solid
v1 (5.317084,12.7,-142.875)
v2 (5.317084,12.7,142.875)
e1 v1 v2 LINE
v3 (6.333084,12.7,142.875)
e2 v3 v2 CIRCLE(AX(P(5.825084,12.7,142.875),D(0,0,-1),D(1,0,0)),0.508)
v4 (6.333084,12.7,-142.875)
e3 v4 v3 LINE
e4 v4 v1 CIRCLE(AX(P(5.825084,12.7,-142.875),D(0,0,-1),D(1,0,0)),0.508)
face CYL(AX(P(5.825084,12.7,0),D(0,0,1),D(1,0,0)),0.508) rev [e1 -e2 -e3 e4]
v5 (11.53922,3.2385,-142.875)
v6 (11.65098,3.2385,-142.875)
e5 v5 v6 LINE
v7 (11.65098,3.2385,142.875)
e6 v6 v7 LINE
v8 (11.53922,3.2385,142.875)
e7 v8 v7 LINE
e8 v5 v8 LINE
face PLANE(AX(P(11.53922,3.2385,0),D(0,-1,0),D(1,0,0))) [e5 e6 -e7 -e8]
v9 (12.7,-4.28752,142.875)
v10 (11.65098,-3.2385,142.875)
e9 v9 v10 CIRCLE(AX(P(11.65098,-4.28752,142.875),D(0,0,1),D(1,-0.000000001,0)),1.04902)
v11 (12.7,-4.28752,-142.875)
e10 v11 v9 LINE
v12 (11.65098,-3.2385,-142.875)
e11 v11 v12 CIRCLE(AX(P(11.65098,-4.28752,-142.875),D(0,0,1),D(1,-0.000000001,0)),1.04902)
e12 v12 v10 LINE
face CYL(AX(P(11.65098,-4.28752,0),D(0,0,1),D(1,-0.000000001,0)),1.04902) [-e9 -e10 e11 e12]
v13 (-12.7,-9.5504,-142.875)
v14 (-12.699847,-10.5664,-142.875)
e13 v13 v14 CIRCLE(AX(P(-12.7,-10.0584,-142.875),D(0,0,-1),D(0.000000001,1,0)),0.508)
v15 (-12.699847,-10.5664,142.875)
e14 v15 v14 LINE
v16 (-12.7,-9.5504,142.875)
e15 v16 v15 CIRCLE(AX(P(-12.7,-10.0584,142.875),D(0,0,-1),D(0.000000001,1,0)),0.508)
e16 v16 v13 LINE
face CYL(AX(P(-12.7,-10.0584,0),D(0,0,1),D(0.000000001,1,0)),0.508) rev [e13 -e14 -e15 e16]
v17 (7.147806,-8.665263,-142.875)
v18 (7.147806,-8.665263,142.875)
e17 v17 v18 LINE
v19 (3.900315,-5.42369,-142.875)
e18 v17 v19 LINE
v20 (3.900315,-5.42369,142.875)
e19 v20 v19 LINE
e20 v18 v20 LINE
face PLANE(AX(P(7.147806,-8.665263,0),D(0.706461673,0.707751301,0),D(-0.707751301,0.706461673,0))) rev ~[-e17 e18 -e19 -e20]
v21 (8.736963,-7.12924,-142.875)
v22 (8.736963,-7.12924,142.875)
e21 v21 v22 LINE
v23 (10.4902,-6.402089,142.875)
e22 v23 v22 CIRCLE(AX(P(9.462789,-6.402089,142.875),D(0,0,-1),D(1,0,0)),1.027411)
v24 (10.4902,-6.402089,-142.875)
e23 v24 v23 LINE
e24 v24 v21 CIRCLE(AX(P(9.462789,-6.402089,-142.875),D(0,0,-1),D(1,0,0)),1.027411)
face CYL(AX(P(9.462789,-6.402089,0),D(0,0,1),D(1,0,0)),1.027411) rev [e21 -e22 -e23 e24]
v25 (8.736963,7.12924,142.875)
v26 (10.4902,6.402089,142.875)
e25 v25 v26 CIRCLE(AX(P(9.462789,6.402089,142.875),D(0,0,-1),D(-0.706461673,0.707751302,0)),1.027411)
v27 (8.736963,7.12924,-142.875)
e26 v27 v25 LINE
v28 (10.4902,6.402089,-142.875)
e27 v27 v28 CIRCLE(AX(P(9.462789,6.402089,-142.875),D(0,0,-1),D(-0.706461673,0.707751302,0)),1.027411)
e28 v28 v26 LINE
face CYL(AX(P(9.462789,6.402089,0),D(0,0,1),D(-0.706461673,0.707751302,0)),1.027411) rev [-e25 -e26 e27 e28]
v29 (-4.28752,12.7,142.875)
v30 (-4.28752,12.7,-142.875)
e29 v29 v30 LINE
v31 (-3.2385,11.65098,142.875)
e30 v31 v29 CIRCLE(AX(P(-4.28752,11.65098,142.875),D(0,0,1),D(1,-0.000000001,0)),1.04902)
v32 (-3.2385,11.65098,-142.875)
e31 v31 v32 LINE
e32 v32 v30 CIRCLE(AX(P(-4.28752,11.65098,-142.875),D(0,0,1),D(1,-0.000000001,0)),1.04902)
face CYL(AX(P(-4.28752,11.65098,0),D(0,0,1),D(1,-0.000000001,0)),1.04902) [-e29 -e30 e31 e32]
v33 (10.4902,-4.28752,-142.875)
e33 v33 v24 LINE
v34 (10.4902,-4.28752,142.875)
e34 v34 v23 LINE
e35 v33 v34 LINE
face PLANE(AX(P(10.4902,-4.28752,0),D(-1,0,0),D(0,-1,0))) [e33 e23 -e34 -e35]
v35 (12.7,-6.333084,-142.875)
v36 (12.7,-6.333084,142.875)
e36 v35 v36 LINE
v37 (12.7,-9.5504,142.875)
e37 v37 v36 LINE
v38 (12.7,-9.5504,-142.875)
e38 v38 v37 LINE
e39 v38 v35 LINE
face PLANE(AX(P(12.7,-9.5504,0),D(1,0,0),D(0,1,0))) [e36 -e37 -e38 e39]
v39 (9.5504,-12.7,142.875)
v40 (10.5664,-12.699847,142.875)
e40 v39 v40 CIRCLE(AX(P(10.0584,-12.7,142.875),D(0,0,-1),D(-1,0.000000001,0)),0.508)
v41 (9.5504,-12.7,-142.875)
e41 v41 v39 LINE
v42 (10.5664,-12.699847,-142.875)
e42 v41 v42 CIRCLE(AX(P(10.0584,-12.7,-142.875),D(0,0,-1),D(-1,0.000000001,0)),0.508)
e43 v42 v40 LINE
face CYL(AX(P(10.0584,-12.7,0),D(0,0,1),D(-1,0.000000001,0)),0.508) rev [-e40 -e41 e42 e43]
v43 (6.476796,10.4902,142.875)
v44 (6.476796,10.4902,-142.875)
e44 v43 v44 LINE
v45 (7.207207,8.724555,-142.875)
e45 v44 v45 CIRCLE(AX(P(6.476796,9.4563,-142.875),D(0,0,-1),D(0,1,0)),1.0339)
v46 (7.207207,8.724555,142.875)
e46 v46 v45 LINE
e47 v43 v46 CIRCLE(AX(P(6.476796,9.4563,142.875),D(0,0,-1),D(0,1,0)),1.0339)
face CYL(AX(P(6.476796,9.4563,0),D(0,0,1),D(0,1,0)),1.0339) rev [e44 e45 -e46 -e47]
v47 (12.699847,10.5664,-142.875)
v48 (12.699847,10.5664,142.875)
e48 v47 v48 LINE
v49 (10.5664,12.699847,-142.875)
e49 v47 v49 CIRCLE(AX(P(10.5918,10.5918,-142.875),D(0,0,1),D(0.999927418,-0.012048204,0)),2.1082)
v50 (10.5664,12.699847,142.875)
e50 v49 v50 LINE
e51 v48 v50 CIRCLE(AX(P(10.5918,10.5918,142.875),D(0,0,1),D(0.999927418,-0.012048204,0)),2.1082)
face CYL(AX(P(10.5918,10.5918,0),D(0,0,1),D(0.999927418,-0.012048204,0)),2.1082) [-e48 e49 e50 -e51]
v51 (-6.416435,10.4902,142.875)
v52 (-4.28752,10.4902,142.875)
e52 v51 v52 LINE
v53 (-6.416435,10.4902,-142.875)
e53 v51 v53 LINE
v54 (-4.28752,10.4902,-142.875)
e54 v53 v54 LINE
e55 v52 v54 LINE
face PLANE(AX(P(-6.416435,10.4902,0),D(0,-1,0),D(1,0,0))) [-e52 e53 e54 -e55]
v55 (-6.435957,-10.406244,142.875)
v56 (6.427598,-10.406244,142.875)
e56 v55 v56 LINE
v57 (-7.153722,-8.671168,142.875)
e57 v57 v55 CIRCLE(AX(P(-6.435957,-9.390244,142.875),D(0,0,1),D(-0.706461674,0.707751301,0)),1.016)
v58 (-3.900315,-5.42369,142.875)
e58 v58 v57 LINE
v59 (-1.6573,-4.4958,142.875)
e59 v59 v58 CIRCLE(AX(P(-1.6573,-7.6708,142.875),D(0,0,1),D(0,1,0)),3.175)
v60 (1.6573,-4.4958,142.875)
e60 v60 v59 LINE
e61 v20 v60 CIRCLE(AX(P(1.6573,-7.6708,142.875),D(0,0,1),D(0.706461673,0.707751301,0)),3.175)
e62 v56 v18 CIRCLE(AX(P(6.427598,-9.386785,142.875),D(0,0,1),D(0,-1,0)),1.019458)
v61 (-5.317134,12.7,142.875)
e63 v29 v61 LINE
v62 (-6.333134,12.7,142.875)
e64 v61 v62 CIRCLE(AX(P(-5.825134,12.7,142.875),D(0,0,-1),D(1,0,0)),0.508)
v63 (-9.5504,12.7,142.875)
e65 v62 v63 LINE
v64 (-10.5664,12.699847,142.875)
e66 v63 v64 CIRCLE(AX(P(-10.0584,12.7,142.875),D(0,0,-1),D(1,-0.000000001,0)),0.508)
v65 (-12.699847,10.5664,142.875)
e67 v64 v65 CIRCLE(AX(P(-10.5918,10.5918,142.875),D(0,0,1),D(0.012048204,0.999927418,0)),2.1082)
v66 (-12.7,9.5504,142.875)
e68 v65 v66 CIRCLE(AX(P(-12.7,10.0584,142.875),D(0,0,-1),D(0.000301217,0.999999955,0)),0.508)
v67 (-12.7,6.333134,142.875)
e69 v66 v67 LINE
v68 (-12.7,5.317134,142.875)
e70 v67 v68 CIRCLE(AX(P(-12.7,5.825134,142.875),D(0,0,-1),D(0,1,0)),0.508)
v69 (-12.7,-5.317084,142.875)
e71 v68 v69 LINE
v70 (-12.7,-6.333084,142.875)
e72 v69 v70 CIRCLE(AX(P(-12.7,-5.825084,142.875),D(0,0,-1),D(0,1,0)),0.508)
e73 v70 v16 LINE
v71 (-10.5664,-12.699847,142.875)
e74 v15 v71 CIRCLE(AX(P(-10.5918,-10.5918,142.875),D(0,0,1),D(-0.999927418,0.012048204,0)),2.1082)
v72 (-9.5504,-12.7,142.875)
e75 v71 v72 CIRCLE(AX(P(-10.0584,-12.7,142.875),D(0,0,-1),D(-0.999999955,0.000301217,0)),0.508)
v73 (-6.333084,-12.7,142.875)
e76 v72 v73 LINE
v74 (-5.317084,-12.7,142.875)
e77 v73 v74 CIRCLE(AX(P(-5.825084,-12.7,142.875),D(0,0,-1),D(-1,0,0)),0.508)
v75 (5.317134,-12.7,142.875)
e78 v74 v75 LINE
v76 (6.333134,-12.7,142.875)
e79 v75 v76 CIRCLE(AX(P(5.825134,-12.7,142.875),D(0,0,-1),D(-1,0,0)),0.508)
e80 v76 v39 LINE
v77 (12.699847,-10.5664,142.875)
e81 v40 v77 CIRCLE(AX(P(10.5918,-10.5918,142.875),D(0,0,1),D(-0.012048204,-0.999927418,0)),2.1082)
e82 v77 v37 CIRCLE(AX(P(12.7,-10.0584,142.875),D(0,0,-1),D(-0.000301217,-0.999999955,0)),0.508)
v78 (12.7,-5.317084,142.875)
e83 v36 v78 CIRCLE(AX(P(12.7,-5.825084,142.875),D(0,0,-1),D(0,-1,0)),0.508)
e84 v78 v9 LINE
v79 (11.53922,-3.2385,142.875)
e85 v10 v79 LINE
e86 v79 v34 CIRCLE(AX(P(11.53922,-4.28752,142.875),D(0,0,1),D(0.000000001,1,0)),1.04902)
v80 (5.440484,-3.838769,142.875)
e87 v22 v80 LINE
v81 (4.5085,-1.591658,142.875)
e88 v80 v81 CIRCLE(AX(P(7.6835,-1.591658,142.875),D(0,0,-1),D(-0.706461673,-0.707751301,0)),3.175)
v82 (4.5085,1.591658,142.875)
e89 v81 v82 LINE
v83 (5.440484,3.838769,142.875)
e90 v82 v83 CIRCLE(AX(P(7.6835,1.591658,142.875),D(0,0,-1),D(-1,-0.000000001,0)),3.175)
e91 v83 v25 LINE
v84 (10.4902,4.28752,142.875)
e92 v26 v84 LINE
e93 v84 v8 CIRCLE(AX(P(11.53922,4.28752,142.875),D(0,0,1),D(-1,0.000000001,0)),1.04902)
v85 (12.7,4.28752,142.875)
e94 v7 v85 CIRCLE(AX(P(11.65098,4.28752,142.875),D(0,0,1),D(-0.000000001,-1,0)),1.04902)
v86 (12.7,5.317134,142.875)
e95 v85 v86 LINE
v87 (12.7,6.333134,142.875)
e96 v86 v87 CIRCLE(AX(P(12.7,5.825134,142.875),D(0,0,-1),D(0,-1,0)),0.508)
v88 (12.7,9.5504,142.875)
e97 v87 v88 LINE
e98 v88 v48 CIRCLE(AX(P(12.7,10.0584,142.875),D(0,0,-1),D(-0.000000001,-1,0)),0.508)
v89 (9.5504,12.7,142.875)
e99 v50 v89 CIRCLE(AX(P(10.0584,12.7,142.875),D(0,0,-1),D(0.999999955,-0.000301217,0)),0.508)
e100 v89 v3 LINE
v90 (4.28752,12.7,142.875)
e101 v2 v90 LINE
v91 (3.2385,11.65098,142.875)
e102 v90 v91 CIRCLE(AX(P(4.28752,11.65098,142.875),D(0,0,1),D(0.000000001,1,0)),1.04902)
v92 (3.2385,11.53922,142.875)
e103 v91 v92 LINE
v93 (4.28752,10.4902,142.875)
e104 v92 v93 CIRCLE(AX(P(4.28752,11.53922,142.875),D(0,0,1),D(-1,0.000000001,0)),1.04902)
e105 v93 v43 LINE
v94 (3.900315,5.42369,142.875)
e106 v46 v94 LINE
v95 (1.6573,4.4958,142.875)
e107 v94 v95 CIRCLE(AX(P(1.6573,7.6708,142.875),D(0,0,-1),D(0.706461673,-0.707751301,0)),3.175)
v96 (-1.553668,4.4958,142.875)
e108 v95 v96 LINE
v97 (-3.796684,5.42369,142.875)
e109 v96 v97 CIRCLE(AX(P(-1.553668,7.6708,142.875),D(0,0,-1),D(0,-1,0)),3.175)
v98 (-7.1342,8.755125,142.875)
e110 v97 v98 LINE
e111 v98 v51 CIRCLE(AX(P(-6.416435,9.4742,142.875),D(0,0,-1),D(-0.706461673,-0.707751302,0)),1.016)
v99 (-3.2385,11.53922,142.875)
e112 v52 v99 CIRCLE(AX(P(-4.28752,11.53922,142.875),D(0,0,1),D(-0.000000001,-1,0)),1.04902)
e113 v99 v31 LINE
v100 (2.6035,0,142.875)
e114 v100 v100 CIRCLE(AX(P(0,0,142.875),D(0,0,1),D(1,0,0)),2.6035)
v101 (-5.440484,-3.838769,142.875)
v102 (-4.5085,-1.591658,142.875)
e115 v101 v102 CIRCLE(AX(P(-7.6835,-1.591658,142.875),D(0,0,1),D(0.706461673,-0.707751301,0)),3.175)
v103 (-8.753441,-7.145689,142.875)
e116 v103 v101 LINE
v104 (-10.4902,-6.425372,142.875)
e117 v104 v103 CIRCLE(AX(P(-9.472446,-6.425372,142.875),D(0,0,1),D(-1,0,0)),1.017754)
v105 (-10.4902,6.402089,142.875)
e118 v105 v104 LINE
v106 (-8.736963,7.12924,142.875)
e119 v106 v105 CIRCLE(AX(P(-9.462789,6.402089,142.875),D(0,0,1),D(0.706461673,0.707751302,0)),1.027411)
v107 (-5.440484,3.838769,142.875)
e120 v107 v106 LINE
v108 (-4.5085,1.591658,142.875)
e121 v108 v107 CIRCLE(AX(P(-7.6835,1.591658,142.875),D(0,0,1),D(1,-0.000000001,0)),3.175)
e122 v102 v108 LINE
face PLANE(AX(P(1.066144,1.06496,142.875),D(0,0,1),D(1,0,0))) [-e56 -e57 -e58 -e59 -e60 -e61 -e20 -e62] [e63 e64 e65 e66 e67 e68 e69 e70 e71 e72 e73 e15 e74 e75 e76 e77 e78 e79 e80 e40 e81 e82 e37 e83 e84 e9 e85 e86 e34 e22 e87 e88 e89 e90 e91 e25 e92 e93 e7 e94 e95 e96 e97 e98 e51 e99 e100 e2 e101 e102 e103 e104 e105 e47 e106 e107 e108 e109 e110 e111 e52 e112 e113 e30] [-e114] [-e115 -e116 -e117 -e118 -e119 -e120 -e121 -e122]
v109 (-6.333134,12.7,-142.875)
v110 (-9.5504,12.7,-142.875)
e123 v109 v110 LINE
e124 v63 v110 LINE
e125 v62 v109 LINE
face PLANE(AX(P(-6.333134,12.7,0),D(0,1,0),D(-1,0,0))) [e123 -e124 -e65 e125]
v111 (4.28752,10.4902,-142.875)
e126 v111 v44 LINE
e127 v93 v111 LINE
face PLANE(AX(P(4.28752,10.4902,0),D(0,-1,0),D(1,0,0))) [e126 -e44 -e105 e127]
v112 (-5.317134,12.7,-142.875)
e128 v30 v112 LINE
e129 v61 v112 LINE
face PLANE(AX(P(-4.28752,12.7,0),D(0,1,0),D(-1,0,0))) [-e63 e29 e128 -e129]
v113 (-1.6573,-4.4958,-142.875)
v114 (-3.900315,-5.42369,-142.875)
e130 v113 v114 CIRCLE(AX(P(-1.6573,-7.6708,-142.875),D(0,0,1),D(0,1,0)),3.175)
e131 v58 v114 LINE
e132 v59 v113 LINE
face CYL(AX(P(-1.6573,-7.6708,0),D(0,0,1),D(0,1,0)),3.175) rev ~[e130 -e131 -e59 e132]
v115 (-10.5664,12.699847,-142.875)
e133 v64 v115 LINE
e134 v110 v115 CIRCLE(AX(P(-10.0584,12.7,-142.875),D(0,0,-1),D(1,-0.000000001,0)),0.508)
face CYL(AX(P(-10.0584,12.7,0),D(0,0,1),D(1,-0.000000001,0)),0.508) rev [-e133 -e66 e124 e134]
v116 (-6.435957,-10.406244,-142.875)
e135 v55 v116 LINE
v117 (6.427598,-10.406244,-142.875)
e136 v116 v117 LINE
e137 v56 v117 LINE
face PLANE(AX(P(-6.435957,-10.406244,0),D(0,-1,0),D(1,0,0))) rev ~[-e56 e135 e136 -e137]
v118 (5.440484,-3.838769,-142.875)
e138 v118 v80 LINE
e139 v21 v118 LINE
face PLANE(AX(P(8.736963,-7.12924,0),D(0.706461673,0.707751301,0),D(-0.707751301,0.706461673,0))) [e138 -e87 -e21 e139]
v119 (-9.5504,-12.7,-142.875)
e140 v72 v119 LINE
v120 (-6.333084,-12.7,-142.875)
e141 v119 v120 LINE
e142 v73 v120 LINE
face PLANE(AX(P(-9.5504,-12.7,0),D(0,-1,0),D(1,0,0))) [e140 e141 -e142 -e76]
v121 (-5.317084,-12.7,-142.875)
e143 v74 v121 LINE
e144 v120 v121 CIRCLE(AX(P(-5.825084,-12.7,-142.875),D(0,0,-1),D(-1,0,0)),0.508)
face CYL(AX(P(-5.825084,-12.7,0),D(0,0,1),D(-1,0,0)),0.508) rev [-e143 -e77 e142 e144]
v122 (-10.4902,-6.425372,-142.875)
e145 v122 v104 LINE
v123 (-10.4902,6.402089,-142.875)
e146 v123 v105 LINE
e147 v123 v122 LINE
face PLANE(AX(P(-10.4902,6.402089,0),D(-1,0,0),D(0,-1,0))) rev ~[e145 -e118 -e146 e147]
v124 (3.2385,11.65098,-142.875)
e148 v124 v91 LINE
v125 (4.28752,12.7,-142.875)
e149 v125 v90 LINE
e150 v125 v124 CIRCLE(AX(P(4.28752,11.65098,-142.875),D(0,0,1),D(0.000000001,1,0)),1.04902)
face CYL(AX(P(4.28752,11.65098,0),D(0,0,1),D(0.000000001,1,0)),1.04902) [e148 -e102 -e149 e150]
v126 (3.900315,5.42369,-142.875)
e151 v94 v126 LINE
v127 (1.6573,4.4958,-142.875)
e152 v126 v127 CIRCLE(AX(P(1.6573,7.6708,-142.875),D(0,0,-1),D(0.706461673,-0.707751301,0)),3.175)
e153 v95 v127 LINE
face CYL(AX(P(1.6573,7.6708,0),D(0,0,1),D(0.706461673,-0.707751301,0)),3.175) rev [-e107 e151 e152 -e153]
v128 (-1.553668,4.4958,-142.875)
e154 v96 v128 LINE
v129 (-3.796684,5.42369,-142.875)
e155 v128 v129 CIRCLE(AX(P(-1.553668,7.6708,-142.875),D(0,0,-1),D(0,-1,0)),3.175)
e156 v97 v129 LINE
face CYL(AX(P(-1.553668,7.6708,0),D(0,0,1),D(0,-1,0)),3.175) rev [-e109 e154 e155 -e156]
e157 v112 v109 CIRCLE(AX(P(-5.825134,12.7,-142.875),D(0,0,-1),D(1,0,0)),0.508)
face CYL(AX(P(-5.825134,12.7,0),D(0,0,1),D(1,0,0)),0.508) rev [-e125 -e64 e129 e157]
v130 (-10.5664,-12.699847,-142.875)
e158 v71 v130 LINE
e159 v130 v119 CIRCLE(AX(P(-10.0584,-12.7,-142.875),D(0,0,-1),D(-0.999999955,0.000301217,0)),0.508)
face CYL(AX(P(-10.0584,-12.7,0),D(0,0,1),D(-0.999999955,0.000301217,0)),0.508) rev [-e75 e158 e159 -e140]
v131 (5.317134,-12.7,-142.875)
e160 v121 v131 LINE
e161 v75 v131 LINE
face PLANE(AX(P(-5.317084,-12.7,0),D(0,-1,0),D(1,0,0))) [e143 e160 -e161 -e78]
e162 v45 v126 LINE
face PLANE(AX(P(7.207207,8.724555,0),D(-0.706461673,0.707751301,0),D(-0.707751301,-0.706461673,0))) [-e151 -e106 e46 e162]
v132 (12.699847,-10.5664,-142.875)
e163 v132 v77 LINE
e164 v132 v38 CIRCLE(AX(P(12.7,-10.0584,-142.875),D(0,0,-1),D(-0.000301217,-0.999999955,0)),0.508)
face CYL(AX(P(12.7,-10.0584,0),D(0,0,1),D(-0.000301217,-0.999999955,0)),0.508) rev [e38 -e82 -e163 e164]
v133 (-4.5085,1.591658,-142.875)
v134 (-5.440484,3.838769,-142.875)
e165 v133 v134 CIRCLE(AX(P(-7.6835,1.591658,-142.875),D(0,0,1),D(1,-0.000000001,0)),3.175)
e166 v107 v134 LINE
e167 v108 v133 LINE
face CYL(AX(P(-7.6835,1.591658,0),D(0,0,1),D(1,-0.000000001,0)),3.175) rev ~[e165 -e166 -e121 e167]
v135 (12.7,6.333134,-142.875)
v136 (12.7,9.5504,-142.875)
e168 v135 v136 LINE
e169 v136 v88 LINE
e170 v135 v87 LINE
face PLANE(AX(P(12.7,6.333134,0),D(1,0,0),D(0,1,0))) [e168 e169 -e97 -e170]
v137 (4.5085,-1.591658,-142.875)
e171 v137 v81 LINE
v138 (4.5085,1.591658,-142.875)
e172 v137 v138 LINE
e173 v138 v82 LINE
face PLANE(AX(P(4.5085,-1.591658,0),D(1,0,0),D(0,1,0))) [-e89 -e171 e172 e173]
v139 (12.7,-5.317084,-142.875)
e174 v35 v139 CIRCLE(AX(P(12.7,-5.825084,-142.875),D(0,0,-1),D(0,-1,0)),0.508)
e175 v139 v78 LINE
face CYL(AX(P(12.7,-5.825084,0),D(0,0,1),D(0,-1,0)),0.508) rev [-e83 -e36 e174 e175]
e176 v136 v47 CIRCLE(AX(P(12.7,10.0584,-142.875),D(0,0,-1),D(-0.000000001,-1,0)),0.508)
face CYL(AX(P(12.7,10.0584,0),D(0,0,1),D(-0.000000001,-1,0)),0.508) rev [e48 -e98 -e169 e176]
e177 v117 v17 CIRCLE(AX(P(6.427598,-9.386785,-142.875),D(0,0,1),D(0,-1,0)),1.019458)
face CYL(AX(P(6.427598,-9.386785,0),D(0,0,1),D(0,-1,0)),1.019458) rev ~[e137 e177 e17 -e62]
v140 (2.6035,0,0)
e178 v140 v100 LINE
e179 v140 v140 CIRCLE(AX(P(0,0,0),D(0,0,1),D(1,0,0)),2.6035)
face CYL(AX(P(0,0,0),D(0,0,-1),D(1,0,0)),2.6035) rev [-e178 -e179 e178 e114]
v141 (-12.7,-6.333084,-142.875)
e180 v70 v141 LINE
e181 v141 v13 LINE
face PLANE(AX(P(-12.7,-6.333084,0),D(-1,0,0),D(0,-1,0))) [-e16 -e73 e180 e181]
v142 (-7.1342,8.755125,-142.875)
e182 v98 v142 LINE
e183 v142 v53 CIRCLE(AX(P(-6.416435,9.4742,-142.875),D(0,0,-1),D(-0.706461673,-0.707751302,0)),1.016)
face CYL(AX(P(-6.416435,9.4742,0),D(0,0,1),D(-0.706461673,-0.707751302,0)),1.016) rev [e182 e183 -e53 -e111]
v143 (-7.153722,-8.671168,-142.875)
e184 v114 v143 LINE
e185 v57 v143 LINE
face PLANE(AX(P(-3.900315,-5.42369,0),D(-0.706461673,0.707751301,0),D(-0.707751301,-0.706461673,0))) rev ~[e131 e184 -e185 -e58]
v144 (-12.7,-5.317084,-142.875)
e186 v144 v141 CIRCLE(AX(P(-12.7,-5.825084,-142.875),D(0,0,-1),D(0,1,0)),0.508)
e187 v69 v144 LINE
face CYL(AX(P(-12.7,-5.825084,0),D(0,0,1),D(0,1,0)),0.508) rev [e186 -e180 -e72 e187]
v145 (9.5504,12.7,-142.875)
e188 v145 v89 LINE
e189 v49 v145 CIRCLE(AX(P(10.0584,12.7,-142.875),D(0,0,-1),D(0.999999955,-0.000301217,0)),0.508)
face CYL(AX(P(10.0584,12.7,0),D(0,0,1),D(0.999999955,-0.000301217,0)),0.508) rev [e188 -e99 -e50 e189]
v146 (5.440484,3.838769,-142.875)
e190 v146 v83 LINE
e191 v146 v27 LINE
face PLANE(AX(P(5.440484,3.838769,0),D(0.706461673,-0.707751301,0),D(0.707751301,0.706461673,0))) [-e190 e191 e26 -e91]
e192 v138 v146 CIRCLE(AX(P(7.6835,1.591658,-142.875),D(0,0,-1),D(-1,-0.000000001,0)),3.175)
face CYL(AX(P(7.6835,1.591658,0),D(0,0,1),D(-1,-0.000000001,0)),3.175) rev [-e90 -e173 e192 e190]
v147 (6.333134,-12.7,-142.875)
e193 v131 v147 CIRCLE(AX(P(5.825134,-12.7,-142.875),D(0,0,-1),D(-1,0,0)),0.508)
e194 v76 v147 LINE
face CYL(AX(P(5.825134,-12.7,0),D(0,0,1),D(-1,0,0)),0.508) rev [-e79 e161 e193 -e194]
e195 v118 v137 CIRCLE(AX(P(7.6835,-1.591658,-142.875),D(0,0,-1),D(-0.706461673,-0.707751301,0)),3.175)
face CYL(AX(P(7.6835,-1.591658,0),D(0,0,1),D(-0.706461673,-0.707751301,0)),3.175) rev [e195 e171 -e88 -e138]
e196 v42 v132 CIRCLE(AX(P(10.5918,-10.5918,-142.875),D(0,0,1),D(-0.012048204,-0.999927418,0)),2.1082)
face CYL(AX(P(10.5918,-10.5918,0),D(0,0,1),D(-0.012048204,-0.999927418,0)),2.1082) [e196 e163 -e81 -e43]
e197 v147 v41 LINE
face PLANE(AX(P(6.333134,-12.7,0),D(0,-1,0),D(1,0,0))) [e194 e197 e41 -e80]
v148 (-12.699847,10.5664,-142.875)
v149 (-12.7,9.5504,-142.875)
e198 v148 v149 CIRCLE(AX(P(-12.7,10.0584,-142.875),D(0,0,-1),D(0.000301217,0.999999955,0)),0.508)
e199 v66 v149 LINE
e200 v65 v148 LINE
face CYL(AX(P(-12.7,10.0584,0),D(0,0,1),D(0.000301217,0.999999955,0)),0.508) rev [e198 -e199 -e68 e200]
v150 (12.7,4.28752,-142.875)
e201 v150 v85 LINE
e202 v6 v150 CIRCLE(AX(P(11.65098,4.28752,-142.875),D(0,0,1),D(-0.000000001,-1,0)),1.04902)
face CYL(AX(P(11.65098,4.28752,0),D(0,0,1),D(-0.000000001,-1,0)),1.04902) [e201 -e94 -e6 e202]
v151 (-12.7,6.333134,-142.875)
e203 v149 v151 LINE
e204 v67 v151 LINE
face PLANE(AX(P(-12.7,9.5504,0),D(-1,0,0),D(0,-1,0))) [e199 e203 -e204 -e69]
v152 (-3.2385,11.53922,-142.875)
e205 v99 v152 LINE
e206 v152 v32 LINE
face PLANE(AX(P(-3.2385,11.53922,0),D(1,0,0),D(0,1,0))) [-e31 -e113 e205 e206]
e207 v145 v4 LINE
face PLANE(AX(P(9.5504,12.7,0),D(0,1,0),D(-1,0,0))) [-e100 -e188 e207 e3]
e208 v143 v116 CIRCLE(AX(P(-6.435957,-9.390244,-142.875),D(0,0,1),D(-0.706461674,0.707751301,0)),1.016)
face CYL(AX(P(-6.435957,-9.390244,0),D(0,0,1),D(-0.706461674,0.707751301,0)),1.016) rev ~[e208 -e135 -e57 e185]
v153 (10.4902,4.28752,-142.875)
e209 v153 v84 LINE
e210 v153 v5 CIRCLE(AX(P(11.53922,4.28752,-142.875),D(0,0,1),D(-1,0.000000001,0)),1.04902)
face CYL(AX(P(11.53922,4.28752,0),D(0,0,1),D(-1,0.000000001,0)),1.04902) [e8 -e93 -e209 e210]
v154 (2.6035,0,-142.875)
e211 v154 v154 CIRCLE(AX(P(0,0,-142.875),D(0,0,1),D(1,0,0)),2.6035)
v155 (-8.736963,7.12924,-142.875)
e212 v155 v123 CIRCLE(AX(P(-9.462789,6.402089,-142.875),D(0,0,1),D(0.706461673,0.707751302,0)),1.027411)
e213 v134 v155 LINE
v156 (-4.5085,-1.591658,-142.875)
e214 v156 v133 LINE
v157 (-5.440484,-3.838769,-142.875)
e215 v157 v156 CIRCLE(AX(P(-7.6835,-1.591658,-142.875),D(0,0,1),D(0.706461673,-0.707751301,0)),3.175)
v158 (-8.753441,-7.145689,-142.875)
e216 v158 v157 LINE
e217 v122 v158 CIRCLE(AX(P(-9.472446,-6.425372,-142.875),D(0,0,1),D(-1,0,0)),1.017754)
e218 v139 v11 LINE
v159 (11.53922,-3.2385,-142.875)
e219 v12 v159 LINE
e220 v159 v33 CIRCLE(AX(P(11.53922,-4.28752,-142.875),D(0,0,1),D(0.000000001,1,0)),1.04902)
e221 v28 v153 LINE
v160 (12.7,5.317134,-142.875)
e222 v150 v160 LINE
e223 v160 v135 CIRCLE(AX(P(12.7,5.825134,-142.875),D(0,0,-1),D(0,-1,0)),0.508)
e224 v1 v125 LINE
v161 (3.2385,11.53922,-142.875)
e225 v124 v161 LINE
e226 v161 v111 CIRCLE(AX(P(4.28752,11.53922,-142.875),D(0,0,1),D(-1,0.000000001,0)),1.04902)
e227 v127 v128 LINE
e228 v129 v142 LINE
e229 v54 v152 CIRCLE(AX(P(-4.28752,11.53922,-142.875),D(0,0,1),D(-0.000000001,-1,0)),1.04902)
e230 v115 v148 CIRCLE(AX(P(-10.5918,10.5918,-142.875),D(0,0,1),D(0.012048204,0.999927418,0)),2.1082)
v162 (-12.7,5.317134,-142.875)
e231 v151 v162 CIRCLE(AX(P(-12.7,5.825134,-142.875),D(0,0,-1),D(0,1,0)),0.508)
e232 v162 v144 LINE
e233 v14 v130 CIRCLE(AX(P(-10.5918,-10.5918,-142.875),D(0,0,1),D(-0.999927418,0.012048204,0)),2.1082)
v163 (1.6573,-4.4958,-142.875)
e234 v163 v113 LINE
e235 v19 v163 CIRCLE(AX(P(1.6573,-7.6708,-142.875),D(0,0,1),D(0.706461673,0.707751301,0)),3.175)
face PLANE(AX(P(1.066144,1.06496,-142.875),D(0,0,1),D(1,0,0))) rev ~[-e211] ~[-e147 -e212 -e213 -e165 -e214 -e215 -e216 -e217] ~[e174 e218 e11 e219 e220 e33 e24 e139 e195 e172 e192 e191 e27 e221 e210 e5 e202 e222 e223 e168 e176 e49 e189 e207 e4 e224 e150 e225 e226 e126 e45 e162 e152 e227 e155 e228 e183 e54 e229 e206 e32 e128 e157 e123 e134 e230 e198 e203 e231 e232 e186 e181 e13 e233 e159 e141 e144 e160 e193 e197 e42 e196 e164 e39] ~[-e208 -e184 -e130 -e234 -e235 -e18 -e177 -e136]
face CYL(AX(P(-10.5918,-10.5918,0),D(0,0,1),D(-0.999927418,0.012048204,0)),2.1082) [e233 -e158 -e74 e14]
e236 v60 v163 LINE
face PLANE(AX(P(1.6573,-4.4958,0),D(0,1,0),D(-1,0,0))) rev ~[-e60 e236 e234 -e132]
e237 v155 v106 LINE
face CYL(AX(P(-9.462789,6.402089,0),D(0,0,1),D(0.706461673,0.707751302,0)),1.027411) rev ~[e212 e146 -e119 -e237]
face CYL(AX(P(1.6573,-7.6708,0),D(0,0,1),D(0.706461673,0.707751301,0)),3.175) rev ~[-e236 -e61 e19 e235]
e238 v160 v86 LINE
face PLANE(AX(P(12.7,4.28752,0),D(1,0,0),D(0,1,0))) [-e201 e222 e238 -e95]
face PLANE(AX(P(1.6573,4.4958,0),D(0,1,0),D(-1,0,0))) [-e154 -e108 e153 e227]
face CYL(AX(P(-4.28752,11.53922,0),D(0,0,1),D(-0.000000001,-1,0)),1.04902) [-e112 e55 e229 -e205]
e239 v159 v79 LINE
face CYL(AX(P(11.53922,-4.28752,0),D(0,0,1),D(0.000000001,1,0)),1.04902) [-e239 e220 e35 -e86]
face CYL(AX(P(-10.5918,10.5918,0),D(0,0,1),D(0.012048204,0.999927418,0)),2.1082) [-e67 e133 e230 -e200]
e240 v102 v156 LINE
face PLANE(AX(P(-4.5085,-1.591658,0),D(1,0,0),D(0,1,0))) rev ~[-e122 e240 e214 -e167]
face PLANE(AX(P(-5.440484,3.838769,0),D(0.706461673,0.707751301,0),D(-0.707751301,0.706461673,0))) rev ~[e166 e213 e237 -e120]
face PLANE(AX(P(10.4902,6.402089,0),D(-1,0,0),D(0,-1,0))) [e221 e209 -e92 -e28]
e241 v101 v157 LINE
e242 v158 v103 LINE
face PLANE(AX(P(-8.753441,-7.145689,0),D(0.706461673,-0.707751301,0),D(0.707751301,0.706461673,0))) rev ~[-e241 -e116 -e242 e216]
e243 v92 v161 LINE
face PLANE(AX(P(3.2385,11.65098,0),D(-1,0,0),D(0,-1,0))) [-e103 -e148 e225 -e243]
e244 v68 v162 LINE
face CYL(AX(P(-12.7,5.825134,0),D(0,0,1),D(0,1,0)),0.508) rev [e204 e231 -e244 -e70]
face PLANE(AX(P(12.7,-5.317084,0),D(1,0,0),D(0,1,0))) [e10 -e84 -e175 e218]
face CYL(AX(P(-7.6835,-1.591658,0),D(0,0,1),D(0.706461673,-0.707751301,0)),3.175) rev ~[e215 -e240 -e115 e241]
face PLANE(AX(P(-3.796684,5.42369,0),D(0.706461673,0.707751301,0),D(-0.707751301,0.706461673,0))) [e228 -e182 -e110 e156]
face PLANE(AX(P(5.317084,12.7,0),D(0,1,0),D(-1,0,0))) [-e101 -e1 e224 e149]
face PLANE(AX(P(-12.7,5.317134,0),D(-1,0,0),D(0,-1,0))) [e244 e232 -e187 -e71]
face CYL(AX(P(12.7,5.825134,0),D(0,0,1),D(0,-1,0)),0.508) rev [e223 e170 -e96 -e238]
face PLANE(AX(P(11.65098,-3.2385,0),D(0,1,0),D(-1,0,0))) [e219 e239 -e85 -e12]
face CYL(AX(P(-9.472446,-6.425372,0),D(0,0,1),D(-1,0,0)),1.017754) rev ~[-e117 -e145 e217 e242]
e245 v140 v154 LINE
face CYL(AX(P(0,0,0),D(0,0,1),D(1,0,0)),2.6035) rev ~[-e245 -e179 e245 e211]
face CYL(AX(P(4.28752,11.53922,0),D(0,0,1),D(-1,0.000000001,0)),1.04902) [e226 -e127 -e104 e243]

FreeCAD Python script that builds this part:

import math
import FreeCAD as App
import Part
import Sketcher

V = App.Vector
Q = App.Units.Quantity

doc = App.newDocument("Part")
body = doc.addObject("PartDesign::Body", "Body")

sketch1 = doc.addObject("Sketcher::SketchObject", "Sketch")
body.addObject(sketch1)
sketch1.AttachmentSupport = (doc.XY_Plane, [""])
sketch1.MapMode = "FlatFace"
sketch1.addGeometry(Part.LineSegment(V(6.33, -12.7, 0), V(9.55, -12.7, 0)), False)
sketch1.addGeometry(Part.ArcOfCircle(Part.Circle(V(10.06, -12.7, 0), V(0, 0, 1), 0.51), math.radians(0), math.radians(180)), False)
sketch1.addGeometry(Part.ArcOfCircle(Part.Circle(V(10.59, -10.59, 0), V(0, 0, 1), 2.11), math.radians(-91), math.radians(1)), False)
sketch1.addGeometry(Part.ArcOfCircle(Part.Circle(V(12.7, -10.06, 0), V(0, 0, 1), 0.51), math.radians(90), math.radians(270)), False)
sketch1.addGeometry(Part.LineSegment(V(12.7, -9.55, 0), V(12.7, -6.33, 0)), False)
sketch1.addGeometry(Part.ArcOfCircle(Part.Circle(V(12.7, -5.83, 0), V(0, 0, 1), 0.51), math.radians(90), math.radians(270)), False)
sketch1.addGeometry(Part.LineSegment(V(12.7, -5.32, 0), V(12.7, -4.29, 0)), False)
sketch1.addGeometry(Part.ArcOfCircle(Part.Circle(V(11.65, -4.29, 0), V(0, 0, 1), 1.05), math.radians(0), math.radians(90)), False)
sketch1.addGeometry(Part.LineSegment(V(11.65, -3.24, 0), V(11.54, -3.24, 0)), False)
sketch1.addGeometry(Part.ArcOfCircle(Part.Circle(V(11.54, -4.29, 0), V(0, 0, 1), 1.05), math.radians(90), math.radians(180)), False)
sketch1.addGeometry(Part.LineSegment(V(10.49, -4.29, 0), V(10.49, -6.4, 0)), False)
sketch1.addGeometry(Part.ArcOfCircle(Part.Circle(V(9.46, -6.4, 0), V(0, 0, 1), 1.03), math.radians(-135), math.radians(0)), False)
sketch1.addGeometry(Part.LineSegment(V(8.74, -7.13, 0), V(5.44, -3.84, 0)), False)
sketch1.addGeometry(Part.ArcOfCircle(Part.Circle(V(7.68, -1.59, 0), V(0, 0, 1), 3.17), math.radians(180), math.radians(225)), False)
sketch1.addGeometry(Part.LineSegment(V(4.51, -1.59, 0), V(4.51, 1.59, 0)), False)
sketch1.addGeometry(Part.ArcOfCircle(Part.Circle(V(7.68, 1.59, 0), V(0, 0, 1), 3.17), math.radians(135), math.radians(180)), False)
sketch1.addGeometry(Part.LineSegment(V(5.44, 3.84, 0), V(8.74, 7.13, 0)), False)
sketch1.addGeometry(Part.ArcOfCircle(Part.Circle(V(9.46, 6.4, 0), V(0, 0, 1), 1.03), math.radians(0), math.radians(135)), False)
sketch1.addGeometry(Part.LineSegment(V(10.49, 6.4, 0), V(10.49, 4.29, 0)), False)
sketch1.addGeometry(Part.ArcOfCircle(Part.Circle(V(11.54, 4.29, 0), V(0, 0, 1), 1.05), math.radians(180), math.radians(270)), False)
sketch1.addGeometry(Part.LineSegment(V(11.54, 3.24, 0), V(11.65, 3.24, 0)), False)
sketch1.addGeometry(Part.ArcOfCircle(Part.Circle(V(11.65, 4.29, 0), V(0, 0, 1), 1.05), math.radians(-90), math.radians(0)), False)
sketch1.addGeometry(Part.LineSegment(V(12.7, 4.29, 0), V(12.7, 5.32, 0)), False)
sketch1.addGeometry(Part.ArcOfCircle(Part.Circle(V(12.7, 5.83, 0), V(0, 0, 1), 0.51), math.radians(90), math.radians(270)), False)
sketch1.addGeometry(Part.LineSegment(V(12.7, 6.33, 0), V(12.7, 9.55, 0)), False)
sketch1.addGeometry(Part.ArcOfCircle(Part.Circle(V(12.7, 10.06, 0), V(0, 0, 1), 0.51), math.radians(90), math.radians(270)), False)
sketch1.addGeometry(Part.ArcOfCircle(Part.Circle(V(10.59, 10.59, 0), V(0, 0, 1), 2.11), math.radians(-1), math.radians(91)), False)
sketch1.addGeometry(Part.ArcOfCircle(Part.Circle(V(10.06, 12.7, 0), V(0, 0, 1), 0.51), math.radians(180), math.radians(360)), False)
sketch1.addGeometry(Part.LineSegment(V(9.55, 12.7, 0), V(6.33, 12.7, 0)), False)
sketch1.addGeometry(Part.ArcOfCircle(Part.Circle(V(5.83, 12.7, 0), V(0, 0, 1), 0.51), math.radians(180), math.radians(360)), False)
sketch1.addGeometry(Part.LineSegment(V(5.32, 12.7, 0), V(4.29, 12.7, 0)), False)
sketch1.addGeometry(Part.ArcOfCircle(Part.Circle(V(4.29, 11.65, 0), V(0, 0, 1), 1.05), math.radians(90), math.radians(180)), False)
sketch1.addGeometry(Part.LineSegment(V(3.24, 11.65, 0), V(3.24, 11.54, 0)), False)
sketch1.addGeometry(Part.ArcOfCircle(Part.Circle(V(4.29, 11.54, 0), V(0, 0, 1), 1.05), math.radians(180), math.radians(270)), False)
sketch1.addGeometry(Part.LineSegment(V(4.29, 10.49, 0), V(6.48, 10.49, 0)), False)
sketch1.addGeometry(Part.ArcOfCircle(Part.Circle(V(6.48, 9.46, 0), V(0, 0, 1), 1.03), math.radians(-45), math.radians(90)), False)
sketch1.addGeometry(Part.LineSegment(V(7.21, 8.72, 0), V(3.9, 5.42, 0)), False)
sketch1.addGeometry(Part.ArcOfCircle(Part.Circle(V(1.66, 7.67, 0), V(0, 0, 1), 3.17), math.radians(-90), math.radians(-45)), False)
sketch1.addGeometry(Part.LineSegment(V(1.66, 4.5, 0), V(-1.55, 4.5, 0)), False)
sketch1.addGeometry(Part.ArcOfCircle(Part.Circle(V(-1.55, 7.67, 0), V(0, 0, 1), 3.17), math.radians(-135), math.radians(-90)), False)
sketch1.addGeometry(Part.LineSegment(V(-3.8, 5.42, 0), V(-7.13, 8.76, 0)), False)
sketch1.addGeometry(Part.ArcOfCircle(Part.Circle(V(-6.42, 9.47, 0), V(0, 0, 1), 1.02), math.radians(90), math.radians(225)), False)
sketch1.addGeometry(Part.LineSegment(V(-6.42, 10.49, 0), V(-4.29, 10.49, 0)), False)
sketch1.addGeometry(Part.ArcOfCircle(Part.Circle(V(-4.29, 11.54, 0), V(0, 0, 1), 1.05), math.radians(-90), math.radians(0)), False)
sketch1.addGeometry(Part.LineSegment(V(-3.24, 11.54, 0), V(-3.24, 11.65, 0)), False)
sketch1.addGeometry(Part.ArcOfCircle(Part.Circle(V(-4.29, 11.65, 0), V(0, 0, 1), 1.05), math.radians(0), math.radians(90)), False)
sketch1.addGeometry(Part.LineSegment(V(-4.29, 12.7, 0), V(-5.32, 12.7, 0)), False)
sketch1.addGeometry(Part.ArcOfCircle(Part.Circle(V(-5.83, 12.7, 0), V(0, 0, 1), 0.51), math.radians(180), math.radians(360)), False)
sketch1.addGeometry(Part.LineSegment(V(-6.33, 12.7, 0), V(-9.55, 12.7, 0)), False)
sketch1.addGeometry(Part.ArcOfCircle(Part.Circle(V(-10.06, 12.7, 0), V(0, 0, 1), 0.51), math.radians(-180), math.radians(0)), False)
sketch1.addGeometry(Part.ArcOfCircle(Part.Circle(V(-10.59, 10.59, 0), V(0, 0, 1), 2.11), math.radians(89), math.radians(181)), False)
sketch1.addGeometry(Part.ArcOfCircle(Part.Circle(V(-12.7, 10.06, 0), V(0, 0, 1), 0.51), math.radians(-90), math.radians(90)), False)
sketch1.addGeometry(Part.LineSegment(V(-12.7, 9.55, 0), V(-12.7, 6.33, 0)), False)
sketch1.addGeometry(Part.ArcOfCircle(Part.Circle(V(-12.7, 5.83, 0), V(0, 0, 1), 0.51), math.radians(-90), math.radians(90)), False)
sketch1.addGeometry(Part.LineSegment(V(-12.7, 5.32, 0), V(-12.7, -5.32, 0)), False)
sketch1.addGeometry(Part.ArcOfCircle(Part.Circle(V(-12.7, -5.83, 0), V(0, 0, 1), 0.51), math.radians(-90), math.radians(90)), False)
sketch1.addGeometry(Part.LineSegment(V(-12.7, -6.33, 0), V(-12.7, -9.55, 0)), False)
sketch1.addGeometry(Part.ArcOfCircle(Part.Circle(V(-12.7, -10.06, 0), V(0, 0, 1), 0.51), math.radians(-90), math.radians(90)), False)
sketch1.addGeometry(Part.ArcOfCircle(Part.Circle(V(-10.59, -10.59, 0), V(0, 0, 1), 2.11), math.radians(179), math.radians(271)), False)
sketch1.addGeometry(Part.ArcOfCircle(Part.Circle(V(-10.06, -12.7, 0), V(0, 0, 1), 0.51), math.radians(0), math.radians(180)), False)
sketch1.addGeometry(Part.LineSegment(V(-9.55, -12.7, 0), V(-6.33, -12.7, 0)), False)
sketch1.addGeometry(Part.ArcOfCircle(Part.Circle(V(-5.83, -12.7, 0), V(0, 0, 1), 0.51), math.radians(0), math.radians(180)), False)
sketch1.addGeometry(Part.LineSegment(V(-5.32, -12.7, 0), V(5.32, -12.7, 0)), False)
sketch1.addGeometry(Part.ArcOfCircle(Part.Circle(V(5.83, -12.7, 0), V(0, 0, 1), 0.51), math.radians(0), math.radians(180)), False)
sketch1.addGeometry(Part.LineSegment(V(3.9, -5.42, 0), V(7.15, -8.67, 0)), False)
sketch1.addGeometry(Part.ArcOfCircle(Part.Circle(V(6.43, -9.39, 0), V(0, 0, 1), 1.02), math.radians(-90), math.radians(45)), False)
sketch1.addGeometry(Part.LineSegment(V(6.43, -10.41, 0), V(-6.44, -10.41, 0)), False)
sketch1.addGeometry(Part.ArcOfCircle(Part.Circle(V(-6.44, -9.39, 0), V(0, 0, 1), 1.02), math.radians(135), math.radians(270)), False)
sketch1.addGeometry(Part.LineSegment(V(-7.15, -8.67, 0), V(-3.9, -5.42, 0)), False)
sketch1.addGeometry(Part.ArcOfCircle(Part.Circle(V(-1.66, -7.67, 0), V(0, 0, 1), 3.17), math.radians(90), math.radians(135)), False)
sketch1.addGeometry(Part.LineSegment(V(-1.66, -4.5, 0), V(1.66, -4.5, 0)), False)
sketch1.addGeometry(Part.ArcOfCircle(Part.Circle(V(1.66, -7.67, 0), V(0, 0, 1), 3.17), math.radians(45), math.radians(90)), False)
sketch1.addGeometry(Part.LineSegment(V(-5.44, -3.84, 0), V(-8.75, -7.15, 0)), False)
sketch1.addGeometry(Part.ArcOfCircle(Part.Circle(V(-9.47, -6.43, 0), V(0, 0, 1), 1.02), math.radians(180), math.radians(315)), False)
sketch1.addGeometry(Part.LineSegment(V(-10.49, -6.43, 0), V(-10.49, 6.4, 0)), False)
sketch1.addGeometry(Part.ArcOfCircle(Part.Circle(V(-9.46, 6.4, 0), V(0, 0, 1), 1.03), math.radians(45), math.radians(180)), False)
sketch1.addGeometry(Part.LineSegment(V(-8.74, 7.13, 0), V(-5.44, 3.84, 0)), False)
sketch1.addGeometry(Part.ArcOfCircle(Part.Circle(V(-7.68, 1.59, 0), V(0, 0, 1), 3.17), math.radians(0), math.radians(45)), False)
sketch1.addGeometry(Part.LineSegment(V(-4.51, 1.59, 0), V(-4.51, -1.59, 0)), False)
sketch1.addGeometry(Part.ArcOfCircle(Part.Circle(V(-7.68, -1.59, 0), V(0, 0, 1), 3.17), math.radians(-45), math.radians(0)), False)
sketch1.addGeometry(Part.Circle(V(0, 0, 0), V(0, 0, 1), 2.6), False)
sketch1.addConstraint(Sketcher.Constraint("Coincident", 0, 2, 1, 2))
sketch1.addConstraint(Sketcher.Constraint("Coincident", 1, 1, 2, 1))
sketch1.addConstraint(Sketcher.Constraint("Coincident", 2, 2, 3, 2))
sketch1.addConstraint(Sketcher.Constraint("Coincident", 3, 1, 4, 1))
sketch1.addConstraint(Sketcher.Constraint("Coincident", 4, 2, 5, 2))
sketch1.addConstraint(Sketcher.Constraint("Coincident", 5, 1, 6, 1))
sketch1.addConstraint(Sketcher.Constraint("Tangent", 6, 2, 7, 1))
sketch1.addConstraint(Sketcher.Constraint("Tangent", 7, 2, 8, 1))
sketch1.addConstraint(Sketcher.Constraint("Tangent", 8, 2, 9, 1))
sketch1.addConstraint(Sketcher.Constraint("Tangent", 9, 2, 10, 1))
sketch1.addConstraint(Sketcher.Constraint("Tangent", 10, 2, 11, 2))
sketch1.addConstraint(Sketcher.Constraint("Tangent", 11, 1, 12, 1))
sketch1.addConstraint(Sketcher.Constraint("Tangent", 12, 2, 13, 2))
sketch1.addConstraint(Sketcher.Constraint("Tangent", 13, 1, 14, 1))
sketch1.addConstraint(Sketcher.Constraint("Tangent", 14, 2, 15, 2))
sketch1.addConstraint(Sketcher.Constraint("Tangent", 15, 1, 16, 1))
sketch1.addConstraint(Sketcher.Constraint("Tangent", 16, 2, 17, 2))
sketch1.addConstraint(Sketcher.Constraint("Tangent", 17, 1, 18, 1))
sketch1.addConstraint(Sketcher.Constraint("Tangent", 18, 2, 19, 1))
sketch1.addConstraint(Sketcher.Constraint("Tangent", 19, 2, 20, 1))
sketch1.addConstraint(Sketcher.Constraint("Tangent", 20, 2, 21, 1))
sketch1.addConstraint(Sketcher.Constraint("Tangent", 21, 2, 22, 1))
sketch1.addConstraint(Sketcher.Constraint("Coincident", 22, 2, 23, 2))
sketch1.addConstraint(Sketcher.Constraint("Coincident", 23, 1, 24, 1))
sketch1.addConstraint(Sketcher.Constraint("Coincident", 24, 2, 25, 2))
sketch1.addConstraint(Sketcher.Constraint("Coincident", 25, 1, 26, 1))
sketch1.addConstraint(Sketcher.Constraint("Coincident", 26, 2, 27, 2))
sketch1.addConstraint(Sketcher.Constraint("Coincident", 27, 1, 28, 1))
sketch1.addConstraint(Sketcher.Constraint("Coincident", 28, 2, 29, 2))
sketch1.addConstraint(Sketcher.Constraint("Coincident", 29, 1, 30, 1))
sketch1.addConstraint(Sketcher.Constraint("Tangent", 30, 2, 31, 1))
sketch1.addConstraint(Sketcher.Constraint("Tangent", 31, 2, 32, 1))
sketch1.addConstraint(Sketcher.Constraint("Tangent", 32, 2, 33, 1))
sketch1.addConstraint(Sketcher.Constraint("Tangent", 33, 2, 34, 1))
sketch1.addConstraint(Sketcher.Constraint("Tangent", 34, 2, 35, 2))
sketch1.addConstraint(Sketcher.Constraint("Tangent", 35, 1, 36, 1))
sketch1.addConstraint(Sketcher.Constraint("Tangent", 36, 2, 37, 2))
sketch1.addConstraint(Sketcher.Constraint("Tangent", 37, 1, 38, 1))
sketch1.addConstraint(Sketcher.Constraint("Tangent", 38, 2, 39, 2))
sketch1.addConstraint(Sketcher.Constraint("Tangent", 39, 1, 40, 1))
sketch1.addConstraint(Sketcher.Constraint("Tangent", 40, 2, 41, 2))
sketch1.addConstraint(Sketcher.Constraint("Tangent", 41, 1, 42, 1))
sketch1.addConstraint(Sketcher.Constraint("Tangent", 42, 2, 43, 1))
sketch1.addConstraint(Sketcher.Constraint("Tangent", 43, 2, 44, 1))
sketch1.addConstraint(Sketcher.Constraint("Tangent", 44, 2, 45, 1))
sketch1.addConstraint(Sketcher.Constraint("Tangent", 45, 2, 46, 1))
sketch1.addConstraint(Sketcher.Constraint("Coincident", 46, 2, 47, 2))
sketch1.addConstraint(Sketcher.Constraint("Coincident", 47, 1, 48, 1))
sketch1.addConstraint(Sketcher.Constraint("Coincident", 48, 2, 49, 2))
sketch1.addConstraint(Sketcher.Constraint("Coincident", 49, 1, 50, 1))
sketch1.addConstraint(Sketcher.Constraint("Coincident", 50, 2, 51, 2))
sketch1.addConstraint(Sketcher.Constraint("Coincident", 51, 1, 52, 1))
sketch1.addConstraint(Sketcher.Constraint("Coincident", 52, 2, 53, 2))
sketch1.addConstraint(Sketcher.Constraint("Coincident", 53, 1, 54, 1))
sketch1.addConstraint(Sketcher.Constraint("Coincident", 54, 2, 55, 2))
sketch1.addConstraint(Sketcher.Constraint("Coincident", 55, 1, 56, 1))
sketch1.addConstraint(Sketcher.Constraint("Coincident", 56, 2, 57, 2))
sketch1.addConstraint(Sketcher.Constraint("Coincident", 57, 1, 58, 1))
sketch1.addConstraint(Sketcher.Constraint("Coincident", 58, 2, 59, 2))
sketch1.addConstraint(Sketcher.Constraint("Coincident", 59, 1, 60, 1))
sketch1.addConstraint(Sketcher.Constraint("Coincident", 60, 2, 61, 2))
sketch1.addConstraint(Sketcher.Constraint("Coincident", 61, 1, 62, 1))
sketch1.addConstraint(Sketcher.Constraint("Coincident", 62, 2, 63, 2))
sketch1.addConstraint(Sketcher.Constraint("Coincident", 63, 1, 0, 1))
sketch1.addConstraint(Sketcher.Constraint("Tangent", 64, 2, 65, 2))
sketch1.addConstraint(Sketcher.Constraint("Tangent", 65, 1, 66, 1))
sketch1.addConstraint(Sketcher.Constraint("Tangent", 66, 2, 67, 2))
sketch1.addConstraint(Sketcher.Constraint("Tangent", 67, 1, 68, 1))
sketch1.addConstraint(Sketcher.Constraint("Tangent", 68, 2, 69, 2))
sketch1.addConstraint(Sketcher.Constraint("Tangent", 69, 1, 70, 1))
sketch1.addConstraint(Sketcher.Constraint("Tangent", 70, 2, 71, 2))
sketch1.addConstraint(Sketcher.Constraint("Tangent", 71, 1, 64, 1))
sketch1.addConstraint(Sketcher.Constraint("Tangent", 72, 2, 73, 2))
sketch1.addConstraint(Sketcher.Constraint("Tangent", 73, 1, 74, 1))
sketch1.addConstraint(Sketcher.Constraint("Tangent", 74, 2, 75, 2))
sketch1.addConstraint(Sketcher.Constraint("Tangent", 75, 1, 76, 1))
sketch1.addConstraint(Sketcher.Constraint("Tangent", 76, 2, 77, 2))
sketch1.addConstraint(Sketcher.Constraint("Tangent", 77, 1, 78, 1))
sketch1.addConstraint(Sketcher.Constraint("Tangent", 78, 2, 79, 2))
sketch1.addConstraint(Sketcher.Constraint("Tangent", 79, 1, 72, 1))
sketch1.addConstraint(Sketcher.Constraint("Horizontal", 0))
sketch1.addConstraint(Sketcher.Constraint("Vertical", 4))
sketch1.addConstraint(Sketcher.Constraint("Vertical", 6))
sketch1.addConstraint(Sketcher.Constraint("Horizontal", 8))
sketch1.addConstraint(Sketcher.Constraint("Vertical", 10))
sketch1.addConstraint(Sketcher.Constraint("Vertical", 14))
sketch1.addConstraint(Sketcher.Constraint("Vertical", 18))
sketch1.addConstraint(Sketcher.Constraint("Horizontal", 20))
sketch1.addConstraint(Sketcher.Constraint("Vertical", 22))
sketch1.addConstraint(Sketcher.Constraint("Vertical", 24))
sketch1.addConstraint(Sketcher.Constraint("Horizontal", 28))
sketch1.addConstraint(Sketcher.Constraint("Horizontal", 30))
sketch1.addConstraint(Sketcher.Constraint("Vertical", 32))
sketch1.addConstraint(Sketcher.Constraint("Horizontal", 34))
sketch1.addConstraint(Sketcher.Constraint("Horizontal", 38))
sketch1.addConstraint(Sketcher.Constraint("Horizontal", 42))
sketch1.addConstraint(Sketcher.Constraint("Vertical", 44))
sketch1.addConstraint(Sketcher.Constraint("Horizontal", 46))
sketch1.addConstraint(Sketcher.Constraint("Horizontal", 48))
sketch1.addConstraint(Sketcher.Constraint("Vertical", 52))
sketch1.addConstraint(Sketcher.Constraint("Vertical", 54))
sketch1.addConstraint(Sketcher.Constraint("Vertical", 56))
sketch1.addConstraint(Sketcher.Constraint("Horizontal", 60))
sketch1.addConstraint(Sketcher.Constraint("Horizontal", 62))
sketch1.addConstraint(Sketcher.Constraint("Horizontal", 66))
sketch1.addConstraint(Sketcher.Constraint("Horizontal", 70))
sketch1.addConstraint(Sketcher.Constraint("Vertical", 74))
sketch1.addConstraint(Sketcher.Constraint("Vertical", 78))
sketch1.addConstraint(Sketcher.Constraint("Coincident", 80, 3, -1, 1))
sketch1.addConstraint(Sketcher.Constraint("Equal", 1, 3))
sketch1.addConstraint(Sketcher.Constraint("Equal", 3, 5))
sketch1.addConstraint(Sketcher.Constraint("Equal", 7, 9))
sketch1.addConstraint(Sketcher.Constraint("Equal", 13, 15))
sketch1.addConstraint(Sketcher.Constraint("Equal", 11, 17))
sketch1.addConstraint(Sketcher.Constraint("Equal", 9, 19))
sketch1.addConstraint(Sketcher.Constraint("Equal", 19, 21))
sketch1.addConstraint(Sketcher.Constraint("Equal", 5, 23))
sketch1.addConstraint(Sketcher.Constraint("Equal", 23, 25))
sketch1.addConstraint(Sketcher.Constraint("Equal", 2, 26))
sketch1.addConstraint(Sketcher.Constraint("Equal", 25, 27))
sketch1.addConstraint(Sketcher.Constraint("Equal", 27, 29))
sketch1.addConstraint(Sketcher.Constraint("Equal", 21, 31))
sketch1.addConstraint(Sketcher.Constraint("Equal", 31, 33))
sketch1.addConstraint(Sketcher.Constraint("Equal", 15, 37))
sketch1.addConstraint(Sketcher.Constraint("Equal", 37, 39))
sketch1.addConstraint(Sketcher.Constraint("Equal", 33, 43))
sketch1.addConstraint(Sketcher.Constraint("Equal", 43, 45))
sketch1.addConstraint(Sketcher.Constraint("Equal", 29, 47))
sketch1.addConstraint(Sketcher.Constraint("Equal", 47, 49))
sketch1.addConstraint(Sketcher.Constraint("Equal", 26, 50))
sketch1.addConstraint(Sketcher.Constraint("Equal", 49, 51))
sketch1.addConstraint(Sketcher.Constraint("Equal", 51, 53))
sketch1.addConstraint(Sketcher.Constraint("Equal", 53, 55))
sketch1.addConstraint(Sketcher.Constraint("Equal", 55, 57))
sketch1.addConstraint(Sketcher.Constraint("Equal", 50, 58))
sketch1.addConstraint(Sketcher.Constraint("Equal", 57, 59))
sketch1.addConstraint(Sketcher.Constraint("Equal", 59, 61))
sketch1.addConstraint(Sketcher.Constraint("Equal", 61, 63))
sketch1.addConstraint(Sketcher.Constraint("Equal", 41, 67))
sketch1.addConstraint(Sketcher.Constraint("Equal", 39, 69))
sketch1.addConstraint(Sketcher.Constraint("Equal", 69, 71))
sketch1.addConstraint(Sketcher.Constraint("Equal", 17, 75))
sketch1.addConstraint(Sketcher.Constraint("Equal", 71, 77))
sketch1.addConstraint(Sketcher.Constraint("Equal", 77, 79))
sketch1.addConstraint(Sketcher.Constraint("Symmetric", 1, 3, 49, 3, -1, 1))
sketch1.addConstraint(Sketcher.Constraint("Symmetric", 2, 3, 50, 3, -1, 1))
sketch1.addConstraint(Sketcher.Constraint("Symmetric", 3, 3, 51, 3, -1, 1))
sketch1.addConstraint(Sketcher.Constraint("Symmetric", 25, 3, 57, 3, -1, 1))
sketch1.addConstraint(Sketcher.Constraint("Symmetric", 26, 3, 58, 3, -1, 1))
sketch1.addConstraint(Sketcher.Constraint("Symmetric", 27, 3, 59, 3, -1, 1))
sketch1.addConstraint(Sketcher.Constraint("Symmetric", 29, 3, 61, 3, -1, 1))
sketch1.addConstraint(Sketcher.Constraint("Symmetric", 47, 3, 63, 3, -1, 1))
sketch1.addConstraint(Sketcher.Constraint("Symmetric", 37, 3, 69, 3, -1, 1))
sketch1.addConstraint(Sketcher.Constraint("Symmetric", 11, 3, 75, 3, -1, 1))
sketch1.addConstraint(Sketcher.Constraint("Symmetric", 13, 3, 77, 3, -1, 1))
sketch1.addConstraint(Sketcher.Constraint("Symmetric", 15, 1, 79, 1, -1, 1))
sketch1.addConstraint(Sketcher.Constraint("Symmetric", 33, 3, 43, 3, -2))
sketch1.addConstraint(Sketcher.Constraint("Symmetric", 27, 3, 49, 3, -2))
sketch1.addConstraint(Sketcher.Constraint("Symmetric", 26, 3, 50, 3, -2))
sketch1.addConstraint(Sketcher.Constraint("Symmetric", 25, 3, 51, 3, -2))
sketch1.addConstraint(Sketcher.Constraint("Symmetric", 23, 3, 53, 3, -2))
sketch1.addConstraint(Sketcher.Constraint("Symmetric", 5, 3, 55, 3, -2))
sketch1.addConstraint(Sketcher.Constraint("Symmetric", 17, 3, 75, 3, -2))
sketch1.addConstraint(Sketcher.Constraint("Symmetric", 68, 2, 71, 1, -2))
sketch1.addConstraint(Sketcher.Constraint("Symmetric", 7, 3, 21, 3, -1))
sketch1.addConstraint(Sketcher.Constraint("Parallel", 16, 36))
sketch1.addConstraint(Sketcher.Constraint("Parallel", 12, 40))
sketch1.addConstraint(Sketcher.Constraint("Parallel", 40, 64))
sketch1.addConstraint(Sketcher.Constraint("Parallel", 36, 68))
sketch1.addConstraint(Sketcher.Constraint("Horizontal", 27, 3, 29, 3))
sketch1.addConstraint(Sketcher.Constraint("Horizontal", 31, 3, 45, 3))
sketch1.addConstraint(Sketcher.Constraint("Horizontal", 29, 3, 47, 3))
sketch1.addConstraint(Sketcher.Constraint("Horizontal", 63, 3, 0, 2))
sketch1.addConstraint(Sketcher.Constraint("Horizontal", 49, 3, 27, 1))
sketch1.addConstraint(Sketcher.Constraint("Horizontal", 28, 2, 29, 1))
sketch1.addConstraint(Sketcher.Constraint("Horizontal", 46, 2, 47, 1))
sketch1.addConstraint(Sketcher.Constraint("Horizontal", 0, 2, 59, 1))
sketch1.addConstraint(Sketcher.Constraint("Horizontal", 60, 2, 61, 1))
sketch1.addConstraint(Sketcher.Constraint("Vertical", 3, 3, 5, 3))
sketch1.addConstraint(Sketcher.Constraint("Vertical", 5, 3, 23, 3))
sketch1.addConstraint(Sketcher.Constraint("Vertical", 25, 3, 3, 1))
sketch1.addConstraint(Sketcher.Constraint("Vertical", 4, 2, 5, 1))
sketch1.addConstraint(Sketcher.Constraint("Vertical", 22, 2, 23, 1))
sketch1.addConstraint(Sketcher.Constraint("Vertical", 57, 3, 51, 1))
sketch1.addConstraint(Sketcher.Constraint("Vertical", 52, 2, 53, 1))
sketch1.addConstraint(Sketcher.Constraint("Vertical", 54, 2, 55, 1))
sketch1.addConstraint(Sketcher.Constraint("Equal", 60, 4))
sketch1.addConstraint(Sketcher.Constraint("Equal", 30, 6))
sketch1.addConstraint(Sketcher.Constraint("Equal", 46, 22))
sketch1.addConstraint(Sketcher.Constraint("Equal", 20, 32))
sketch1.addConstraint(Sketcher.Constraint("Equal", 62, 54))
sketch1.addConstraint(Sketcher.Constraint("Radius", 1, Q("0.02 in")))
sketch1.addConstraint(Sketcher.Constraint("Radius", 41, Q("0.04 in")))
sketch1.addConstraint(Sketcher.Constraint("Diameter", 80, Q("0.205 in")))
sketch1.addConstraint(Sketcher.Constraint("Radius", 2, Q("0.083 in")))
sketch1.addConstraint(Sketcher.Constraint("Radius", 13, Q("0.125 in")))
sketch1.addConstraint(Sketcher.Constraint("DistanceY", 1, 3, -1, 1, Q("0.5 in")))
sketch1.addConstraint(Sketcher.Constraint("DistanceX", -1, 1, 3, 3, Q("0.5 in")))
sketch1.addConstraint(Sketcher.Constraint("Radius", 7, Q("0.0413 in")))
sketch1.addConstraint(Sketcher.Constraint("Radius", 35, Q("1.0339 mm")))
sketch1.addConstraint(Sketcher.Constraint("DistanceX", 8, 2, 8, 1, Q("0.0044 in")))
sketch1.addConstraint(Sketcher.Constraint("DistanceX", -1, 1, 1, 3, Q("0.396 in")))
sketch1.addConstraint(Sketcher.Constraint("DistanceX", -1, 1, 2, 3, Q("0.417 in")))
sketch1.addConstraint(Sketcher.Constraint("DistanceY", 2, 3, -1, 1, Q("0.417 in")))
sketch1.addConstraint(Sketcher.Constraint("DistanceY", -1, 1, 37, 3, Q("0.302 in")))
sketch1.addConstraint(Sketcher.Constraint("Radius", 11, Q("1.027411 mm")))
sketch1.addConstraint(Sketcher.Constraint("Radius", 65, Q("1.019458 mm")))
sketch1.addConstraint(Sketcher.Constraint("DistanceX", 70, 1, 70, 2, Q("3.314599 mm")))
sketch1.addConstraint(Sketcher.Constraint("DistanceY", 7, 3, -1, 1, Q("0.1688 in")))
sketch1.addConstraint(Sketcher.Constraint("DistanceX", -1, 1, 13, 3, Q("0.3025 in")))
sketch1.addConstraint(Sketcher.Constraint("Radius", 73, Q("1.017754 mm")))
sketch1.addConstraint(Sketcher.Constraint("DistanceX", 62, 1, 62, 2, Q("10.634218 mm")))
sketch1.addConstraint(Sketcher.Constraint("DistanceY", 10, 2, 10, 1, Q("2.114569 mm")))
sketch1.addConstraint(Sketcher.Constraint("DistanceX", 40, 2, -1, 1, Q("7.1342 mm")))
sketch1.addConstraint(Sketcher.Constraint("Distance", 12, Q("4.657679 mm")))
sketch1.addConstraint(Sketcher.Constraint("DistanceX", 0, 1, 0, 2, Q("3.217266 mm")))
sketch1.addConstraint(Sketcher.Constraint("DistanceX", 66, 2, 66, 1, Q("12.863555 mm")))
pad1 = doc.addObject("PartDesign::Pad", "Pad")
body.addObject(pad1)
pad1.Profile = sketch1
pad1.Type = "TwoLengths"
pad1.Length = Q("5.625 in")
pad1.Length2 = Q("5.625 in")

doc.recompute()
